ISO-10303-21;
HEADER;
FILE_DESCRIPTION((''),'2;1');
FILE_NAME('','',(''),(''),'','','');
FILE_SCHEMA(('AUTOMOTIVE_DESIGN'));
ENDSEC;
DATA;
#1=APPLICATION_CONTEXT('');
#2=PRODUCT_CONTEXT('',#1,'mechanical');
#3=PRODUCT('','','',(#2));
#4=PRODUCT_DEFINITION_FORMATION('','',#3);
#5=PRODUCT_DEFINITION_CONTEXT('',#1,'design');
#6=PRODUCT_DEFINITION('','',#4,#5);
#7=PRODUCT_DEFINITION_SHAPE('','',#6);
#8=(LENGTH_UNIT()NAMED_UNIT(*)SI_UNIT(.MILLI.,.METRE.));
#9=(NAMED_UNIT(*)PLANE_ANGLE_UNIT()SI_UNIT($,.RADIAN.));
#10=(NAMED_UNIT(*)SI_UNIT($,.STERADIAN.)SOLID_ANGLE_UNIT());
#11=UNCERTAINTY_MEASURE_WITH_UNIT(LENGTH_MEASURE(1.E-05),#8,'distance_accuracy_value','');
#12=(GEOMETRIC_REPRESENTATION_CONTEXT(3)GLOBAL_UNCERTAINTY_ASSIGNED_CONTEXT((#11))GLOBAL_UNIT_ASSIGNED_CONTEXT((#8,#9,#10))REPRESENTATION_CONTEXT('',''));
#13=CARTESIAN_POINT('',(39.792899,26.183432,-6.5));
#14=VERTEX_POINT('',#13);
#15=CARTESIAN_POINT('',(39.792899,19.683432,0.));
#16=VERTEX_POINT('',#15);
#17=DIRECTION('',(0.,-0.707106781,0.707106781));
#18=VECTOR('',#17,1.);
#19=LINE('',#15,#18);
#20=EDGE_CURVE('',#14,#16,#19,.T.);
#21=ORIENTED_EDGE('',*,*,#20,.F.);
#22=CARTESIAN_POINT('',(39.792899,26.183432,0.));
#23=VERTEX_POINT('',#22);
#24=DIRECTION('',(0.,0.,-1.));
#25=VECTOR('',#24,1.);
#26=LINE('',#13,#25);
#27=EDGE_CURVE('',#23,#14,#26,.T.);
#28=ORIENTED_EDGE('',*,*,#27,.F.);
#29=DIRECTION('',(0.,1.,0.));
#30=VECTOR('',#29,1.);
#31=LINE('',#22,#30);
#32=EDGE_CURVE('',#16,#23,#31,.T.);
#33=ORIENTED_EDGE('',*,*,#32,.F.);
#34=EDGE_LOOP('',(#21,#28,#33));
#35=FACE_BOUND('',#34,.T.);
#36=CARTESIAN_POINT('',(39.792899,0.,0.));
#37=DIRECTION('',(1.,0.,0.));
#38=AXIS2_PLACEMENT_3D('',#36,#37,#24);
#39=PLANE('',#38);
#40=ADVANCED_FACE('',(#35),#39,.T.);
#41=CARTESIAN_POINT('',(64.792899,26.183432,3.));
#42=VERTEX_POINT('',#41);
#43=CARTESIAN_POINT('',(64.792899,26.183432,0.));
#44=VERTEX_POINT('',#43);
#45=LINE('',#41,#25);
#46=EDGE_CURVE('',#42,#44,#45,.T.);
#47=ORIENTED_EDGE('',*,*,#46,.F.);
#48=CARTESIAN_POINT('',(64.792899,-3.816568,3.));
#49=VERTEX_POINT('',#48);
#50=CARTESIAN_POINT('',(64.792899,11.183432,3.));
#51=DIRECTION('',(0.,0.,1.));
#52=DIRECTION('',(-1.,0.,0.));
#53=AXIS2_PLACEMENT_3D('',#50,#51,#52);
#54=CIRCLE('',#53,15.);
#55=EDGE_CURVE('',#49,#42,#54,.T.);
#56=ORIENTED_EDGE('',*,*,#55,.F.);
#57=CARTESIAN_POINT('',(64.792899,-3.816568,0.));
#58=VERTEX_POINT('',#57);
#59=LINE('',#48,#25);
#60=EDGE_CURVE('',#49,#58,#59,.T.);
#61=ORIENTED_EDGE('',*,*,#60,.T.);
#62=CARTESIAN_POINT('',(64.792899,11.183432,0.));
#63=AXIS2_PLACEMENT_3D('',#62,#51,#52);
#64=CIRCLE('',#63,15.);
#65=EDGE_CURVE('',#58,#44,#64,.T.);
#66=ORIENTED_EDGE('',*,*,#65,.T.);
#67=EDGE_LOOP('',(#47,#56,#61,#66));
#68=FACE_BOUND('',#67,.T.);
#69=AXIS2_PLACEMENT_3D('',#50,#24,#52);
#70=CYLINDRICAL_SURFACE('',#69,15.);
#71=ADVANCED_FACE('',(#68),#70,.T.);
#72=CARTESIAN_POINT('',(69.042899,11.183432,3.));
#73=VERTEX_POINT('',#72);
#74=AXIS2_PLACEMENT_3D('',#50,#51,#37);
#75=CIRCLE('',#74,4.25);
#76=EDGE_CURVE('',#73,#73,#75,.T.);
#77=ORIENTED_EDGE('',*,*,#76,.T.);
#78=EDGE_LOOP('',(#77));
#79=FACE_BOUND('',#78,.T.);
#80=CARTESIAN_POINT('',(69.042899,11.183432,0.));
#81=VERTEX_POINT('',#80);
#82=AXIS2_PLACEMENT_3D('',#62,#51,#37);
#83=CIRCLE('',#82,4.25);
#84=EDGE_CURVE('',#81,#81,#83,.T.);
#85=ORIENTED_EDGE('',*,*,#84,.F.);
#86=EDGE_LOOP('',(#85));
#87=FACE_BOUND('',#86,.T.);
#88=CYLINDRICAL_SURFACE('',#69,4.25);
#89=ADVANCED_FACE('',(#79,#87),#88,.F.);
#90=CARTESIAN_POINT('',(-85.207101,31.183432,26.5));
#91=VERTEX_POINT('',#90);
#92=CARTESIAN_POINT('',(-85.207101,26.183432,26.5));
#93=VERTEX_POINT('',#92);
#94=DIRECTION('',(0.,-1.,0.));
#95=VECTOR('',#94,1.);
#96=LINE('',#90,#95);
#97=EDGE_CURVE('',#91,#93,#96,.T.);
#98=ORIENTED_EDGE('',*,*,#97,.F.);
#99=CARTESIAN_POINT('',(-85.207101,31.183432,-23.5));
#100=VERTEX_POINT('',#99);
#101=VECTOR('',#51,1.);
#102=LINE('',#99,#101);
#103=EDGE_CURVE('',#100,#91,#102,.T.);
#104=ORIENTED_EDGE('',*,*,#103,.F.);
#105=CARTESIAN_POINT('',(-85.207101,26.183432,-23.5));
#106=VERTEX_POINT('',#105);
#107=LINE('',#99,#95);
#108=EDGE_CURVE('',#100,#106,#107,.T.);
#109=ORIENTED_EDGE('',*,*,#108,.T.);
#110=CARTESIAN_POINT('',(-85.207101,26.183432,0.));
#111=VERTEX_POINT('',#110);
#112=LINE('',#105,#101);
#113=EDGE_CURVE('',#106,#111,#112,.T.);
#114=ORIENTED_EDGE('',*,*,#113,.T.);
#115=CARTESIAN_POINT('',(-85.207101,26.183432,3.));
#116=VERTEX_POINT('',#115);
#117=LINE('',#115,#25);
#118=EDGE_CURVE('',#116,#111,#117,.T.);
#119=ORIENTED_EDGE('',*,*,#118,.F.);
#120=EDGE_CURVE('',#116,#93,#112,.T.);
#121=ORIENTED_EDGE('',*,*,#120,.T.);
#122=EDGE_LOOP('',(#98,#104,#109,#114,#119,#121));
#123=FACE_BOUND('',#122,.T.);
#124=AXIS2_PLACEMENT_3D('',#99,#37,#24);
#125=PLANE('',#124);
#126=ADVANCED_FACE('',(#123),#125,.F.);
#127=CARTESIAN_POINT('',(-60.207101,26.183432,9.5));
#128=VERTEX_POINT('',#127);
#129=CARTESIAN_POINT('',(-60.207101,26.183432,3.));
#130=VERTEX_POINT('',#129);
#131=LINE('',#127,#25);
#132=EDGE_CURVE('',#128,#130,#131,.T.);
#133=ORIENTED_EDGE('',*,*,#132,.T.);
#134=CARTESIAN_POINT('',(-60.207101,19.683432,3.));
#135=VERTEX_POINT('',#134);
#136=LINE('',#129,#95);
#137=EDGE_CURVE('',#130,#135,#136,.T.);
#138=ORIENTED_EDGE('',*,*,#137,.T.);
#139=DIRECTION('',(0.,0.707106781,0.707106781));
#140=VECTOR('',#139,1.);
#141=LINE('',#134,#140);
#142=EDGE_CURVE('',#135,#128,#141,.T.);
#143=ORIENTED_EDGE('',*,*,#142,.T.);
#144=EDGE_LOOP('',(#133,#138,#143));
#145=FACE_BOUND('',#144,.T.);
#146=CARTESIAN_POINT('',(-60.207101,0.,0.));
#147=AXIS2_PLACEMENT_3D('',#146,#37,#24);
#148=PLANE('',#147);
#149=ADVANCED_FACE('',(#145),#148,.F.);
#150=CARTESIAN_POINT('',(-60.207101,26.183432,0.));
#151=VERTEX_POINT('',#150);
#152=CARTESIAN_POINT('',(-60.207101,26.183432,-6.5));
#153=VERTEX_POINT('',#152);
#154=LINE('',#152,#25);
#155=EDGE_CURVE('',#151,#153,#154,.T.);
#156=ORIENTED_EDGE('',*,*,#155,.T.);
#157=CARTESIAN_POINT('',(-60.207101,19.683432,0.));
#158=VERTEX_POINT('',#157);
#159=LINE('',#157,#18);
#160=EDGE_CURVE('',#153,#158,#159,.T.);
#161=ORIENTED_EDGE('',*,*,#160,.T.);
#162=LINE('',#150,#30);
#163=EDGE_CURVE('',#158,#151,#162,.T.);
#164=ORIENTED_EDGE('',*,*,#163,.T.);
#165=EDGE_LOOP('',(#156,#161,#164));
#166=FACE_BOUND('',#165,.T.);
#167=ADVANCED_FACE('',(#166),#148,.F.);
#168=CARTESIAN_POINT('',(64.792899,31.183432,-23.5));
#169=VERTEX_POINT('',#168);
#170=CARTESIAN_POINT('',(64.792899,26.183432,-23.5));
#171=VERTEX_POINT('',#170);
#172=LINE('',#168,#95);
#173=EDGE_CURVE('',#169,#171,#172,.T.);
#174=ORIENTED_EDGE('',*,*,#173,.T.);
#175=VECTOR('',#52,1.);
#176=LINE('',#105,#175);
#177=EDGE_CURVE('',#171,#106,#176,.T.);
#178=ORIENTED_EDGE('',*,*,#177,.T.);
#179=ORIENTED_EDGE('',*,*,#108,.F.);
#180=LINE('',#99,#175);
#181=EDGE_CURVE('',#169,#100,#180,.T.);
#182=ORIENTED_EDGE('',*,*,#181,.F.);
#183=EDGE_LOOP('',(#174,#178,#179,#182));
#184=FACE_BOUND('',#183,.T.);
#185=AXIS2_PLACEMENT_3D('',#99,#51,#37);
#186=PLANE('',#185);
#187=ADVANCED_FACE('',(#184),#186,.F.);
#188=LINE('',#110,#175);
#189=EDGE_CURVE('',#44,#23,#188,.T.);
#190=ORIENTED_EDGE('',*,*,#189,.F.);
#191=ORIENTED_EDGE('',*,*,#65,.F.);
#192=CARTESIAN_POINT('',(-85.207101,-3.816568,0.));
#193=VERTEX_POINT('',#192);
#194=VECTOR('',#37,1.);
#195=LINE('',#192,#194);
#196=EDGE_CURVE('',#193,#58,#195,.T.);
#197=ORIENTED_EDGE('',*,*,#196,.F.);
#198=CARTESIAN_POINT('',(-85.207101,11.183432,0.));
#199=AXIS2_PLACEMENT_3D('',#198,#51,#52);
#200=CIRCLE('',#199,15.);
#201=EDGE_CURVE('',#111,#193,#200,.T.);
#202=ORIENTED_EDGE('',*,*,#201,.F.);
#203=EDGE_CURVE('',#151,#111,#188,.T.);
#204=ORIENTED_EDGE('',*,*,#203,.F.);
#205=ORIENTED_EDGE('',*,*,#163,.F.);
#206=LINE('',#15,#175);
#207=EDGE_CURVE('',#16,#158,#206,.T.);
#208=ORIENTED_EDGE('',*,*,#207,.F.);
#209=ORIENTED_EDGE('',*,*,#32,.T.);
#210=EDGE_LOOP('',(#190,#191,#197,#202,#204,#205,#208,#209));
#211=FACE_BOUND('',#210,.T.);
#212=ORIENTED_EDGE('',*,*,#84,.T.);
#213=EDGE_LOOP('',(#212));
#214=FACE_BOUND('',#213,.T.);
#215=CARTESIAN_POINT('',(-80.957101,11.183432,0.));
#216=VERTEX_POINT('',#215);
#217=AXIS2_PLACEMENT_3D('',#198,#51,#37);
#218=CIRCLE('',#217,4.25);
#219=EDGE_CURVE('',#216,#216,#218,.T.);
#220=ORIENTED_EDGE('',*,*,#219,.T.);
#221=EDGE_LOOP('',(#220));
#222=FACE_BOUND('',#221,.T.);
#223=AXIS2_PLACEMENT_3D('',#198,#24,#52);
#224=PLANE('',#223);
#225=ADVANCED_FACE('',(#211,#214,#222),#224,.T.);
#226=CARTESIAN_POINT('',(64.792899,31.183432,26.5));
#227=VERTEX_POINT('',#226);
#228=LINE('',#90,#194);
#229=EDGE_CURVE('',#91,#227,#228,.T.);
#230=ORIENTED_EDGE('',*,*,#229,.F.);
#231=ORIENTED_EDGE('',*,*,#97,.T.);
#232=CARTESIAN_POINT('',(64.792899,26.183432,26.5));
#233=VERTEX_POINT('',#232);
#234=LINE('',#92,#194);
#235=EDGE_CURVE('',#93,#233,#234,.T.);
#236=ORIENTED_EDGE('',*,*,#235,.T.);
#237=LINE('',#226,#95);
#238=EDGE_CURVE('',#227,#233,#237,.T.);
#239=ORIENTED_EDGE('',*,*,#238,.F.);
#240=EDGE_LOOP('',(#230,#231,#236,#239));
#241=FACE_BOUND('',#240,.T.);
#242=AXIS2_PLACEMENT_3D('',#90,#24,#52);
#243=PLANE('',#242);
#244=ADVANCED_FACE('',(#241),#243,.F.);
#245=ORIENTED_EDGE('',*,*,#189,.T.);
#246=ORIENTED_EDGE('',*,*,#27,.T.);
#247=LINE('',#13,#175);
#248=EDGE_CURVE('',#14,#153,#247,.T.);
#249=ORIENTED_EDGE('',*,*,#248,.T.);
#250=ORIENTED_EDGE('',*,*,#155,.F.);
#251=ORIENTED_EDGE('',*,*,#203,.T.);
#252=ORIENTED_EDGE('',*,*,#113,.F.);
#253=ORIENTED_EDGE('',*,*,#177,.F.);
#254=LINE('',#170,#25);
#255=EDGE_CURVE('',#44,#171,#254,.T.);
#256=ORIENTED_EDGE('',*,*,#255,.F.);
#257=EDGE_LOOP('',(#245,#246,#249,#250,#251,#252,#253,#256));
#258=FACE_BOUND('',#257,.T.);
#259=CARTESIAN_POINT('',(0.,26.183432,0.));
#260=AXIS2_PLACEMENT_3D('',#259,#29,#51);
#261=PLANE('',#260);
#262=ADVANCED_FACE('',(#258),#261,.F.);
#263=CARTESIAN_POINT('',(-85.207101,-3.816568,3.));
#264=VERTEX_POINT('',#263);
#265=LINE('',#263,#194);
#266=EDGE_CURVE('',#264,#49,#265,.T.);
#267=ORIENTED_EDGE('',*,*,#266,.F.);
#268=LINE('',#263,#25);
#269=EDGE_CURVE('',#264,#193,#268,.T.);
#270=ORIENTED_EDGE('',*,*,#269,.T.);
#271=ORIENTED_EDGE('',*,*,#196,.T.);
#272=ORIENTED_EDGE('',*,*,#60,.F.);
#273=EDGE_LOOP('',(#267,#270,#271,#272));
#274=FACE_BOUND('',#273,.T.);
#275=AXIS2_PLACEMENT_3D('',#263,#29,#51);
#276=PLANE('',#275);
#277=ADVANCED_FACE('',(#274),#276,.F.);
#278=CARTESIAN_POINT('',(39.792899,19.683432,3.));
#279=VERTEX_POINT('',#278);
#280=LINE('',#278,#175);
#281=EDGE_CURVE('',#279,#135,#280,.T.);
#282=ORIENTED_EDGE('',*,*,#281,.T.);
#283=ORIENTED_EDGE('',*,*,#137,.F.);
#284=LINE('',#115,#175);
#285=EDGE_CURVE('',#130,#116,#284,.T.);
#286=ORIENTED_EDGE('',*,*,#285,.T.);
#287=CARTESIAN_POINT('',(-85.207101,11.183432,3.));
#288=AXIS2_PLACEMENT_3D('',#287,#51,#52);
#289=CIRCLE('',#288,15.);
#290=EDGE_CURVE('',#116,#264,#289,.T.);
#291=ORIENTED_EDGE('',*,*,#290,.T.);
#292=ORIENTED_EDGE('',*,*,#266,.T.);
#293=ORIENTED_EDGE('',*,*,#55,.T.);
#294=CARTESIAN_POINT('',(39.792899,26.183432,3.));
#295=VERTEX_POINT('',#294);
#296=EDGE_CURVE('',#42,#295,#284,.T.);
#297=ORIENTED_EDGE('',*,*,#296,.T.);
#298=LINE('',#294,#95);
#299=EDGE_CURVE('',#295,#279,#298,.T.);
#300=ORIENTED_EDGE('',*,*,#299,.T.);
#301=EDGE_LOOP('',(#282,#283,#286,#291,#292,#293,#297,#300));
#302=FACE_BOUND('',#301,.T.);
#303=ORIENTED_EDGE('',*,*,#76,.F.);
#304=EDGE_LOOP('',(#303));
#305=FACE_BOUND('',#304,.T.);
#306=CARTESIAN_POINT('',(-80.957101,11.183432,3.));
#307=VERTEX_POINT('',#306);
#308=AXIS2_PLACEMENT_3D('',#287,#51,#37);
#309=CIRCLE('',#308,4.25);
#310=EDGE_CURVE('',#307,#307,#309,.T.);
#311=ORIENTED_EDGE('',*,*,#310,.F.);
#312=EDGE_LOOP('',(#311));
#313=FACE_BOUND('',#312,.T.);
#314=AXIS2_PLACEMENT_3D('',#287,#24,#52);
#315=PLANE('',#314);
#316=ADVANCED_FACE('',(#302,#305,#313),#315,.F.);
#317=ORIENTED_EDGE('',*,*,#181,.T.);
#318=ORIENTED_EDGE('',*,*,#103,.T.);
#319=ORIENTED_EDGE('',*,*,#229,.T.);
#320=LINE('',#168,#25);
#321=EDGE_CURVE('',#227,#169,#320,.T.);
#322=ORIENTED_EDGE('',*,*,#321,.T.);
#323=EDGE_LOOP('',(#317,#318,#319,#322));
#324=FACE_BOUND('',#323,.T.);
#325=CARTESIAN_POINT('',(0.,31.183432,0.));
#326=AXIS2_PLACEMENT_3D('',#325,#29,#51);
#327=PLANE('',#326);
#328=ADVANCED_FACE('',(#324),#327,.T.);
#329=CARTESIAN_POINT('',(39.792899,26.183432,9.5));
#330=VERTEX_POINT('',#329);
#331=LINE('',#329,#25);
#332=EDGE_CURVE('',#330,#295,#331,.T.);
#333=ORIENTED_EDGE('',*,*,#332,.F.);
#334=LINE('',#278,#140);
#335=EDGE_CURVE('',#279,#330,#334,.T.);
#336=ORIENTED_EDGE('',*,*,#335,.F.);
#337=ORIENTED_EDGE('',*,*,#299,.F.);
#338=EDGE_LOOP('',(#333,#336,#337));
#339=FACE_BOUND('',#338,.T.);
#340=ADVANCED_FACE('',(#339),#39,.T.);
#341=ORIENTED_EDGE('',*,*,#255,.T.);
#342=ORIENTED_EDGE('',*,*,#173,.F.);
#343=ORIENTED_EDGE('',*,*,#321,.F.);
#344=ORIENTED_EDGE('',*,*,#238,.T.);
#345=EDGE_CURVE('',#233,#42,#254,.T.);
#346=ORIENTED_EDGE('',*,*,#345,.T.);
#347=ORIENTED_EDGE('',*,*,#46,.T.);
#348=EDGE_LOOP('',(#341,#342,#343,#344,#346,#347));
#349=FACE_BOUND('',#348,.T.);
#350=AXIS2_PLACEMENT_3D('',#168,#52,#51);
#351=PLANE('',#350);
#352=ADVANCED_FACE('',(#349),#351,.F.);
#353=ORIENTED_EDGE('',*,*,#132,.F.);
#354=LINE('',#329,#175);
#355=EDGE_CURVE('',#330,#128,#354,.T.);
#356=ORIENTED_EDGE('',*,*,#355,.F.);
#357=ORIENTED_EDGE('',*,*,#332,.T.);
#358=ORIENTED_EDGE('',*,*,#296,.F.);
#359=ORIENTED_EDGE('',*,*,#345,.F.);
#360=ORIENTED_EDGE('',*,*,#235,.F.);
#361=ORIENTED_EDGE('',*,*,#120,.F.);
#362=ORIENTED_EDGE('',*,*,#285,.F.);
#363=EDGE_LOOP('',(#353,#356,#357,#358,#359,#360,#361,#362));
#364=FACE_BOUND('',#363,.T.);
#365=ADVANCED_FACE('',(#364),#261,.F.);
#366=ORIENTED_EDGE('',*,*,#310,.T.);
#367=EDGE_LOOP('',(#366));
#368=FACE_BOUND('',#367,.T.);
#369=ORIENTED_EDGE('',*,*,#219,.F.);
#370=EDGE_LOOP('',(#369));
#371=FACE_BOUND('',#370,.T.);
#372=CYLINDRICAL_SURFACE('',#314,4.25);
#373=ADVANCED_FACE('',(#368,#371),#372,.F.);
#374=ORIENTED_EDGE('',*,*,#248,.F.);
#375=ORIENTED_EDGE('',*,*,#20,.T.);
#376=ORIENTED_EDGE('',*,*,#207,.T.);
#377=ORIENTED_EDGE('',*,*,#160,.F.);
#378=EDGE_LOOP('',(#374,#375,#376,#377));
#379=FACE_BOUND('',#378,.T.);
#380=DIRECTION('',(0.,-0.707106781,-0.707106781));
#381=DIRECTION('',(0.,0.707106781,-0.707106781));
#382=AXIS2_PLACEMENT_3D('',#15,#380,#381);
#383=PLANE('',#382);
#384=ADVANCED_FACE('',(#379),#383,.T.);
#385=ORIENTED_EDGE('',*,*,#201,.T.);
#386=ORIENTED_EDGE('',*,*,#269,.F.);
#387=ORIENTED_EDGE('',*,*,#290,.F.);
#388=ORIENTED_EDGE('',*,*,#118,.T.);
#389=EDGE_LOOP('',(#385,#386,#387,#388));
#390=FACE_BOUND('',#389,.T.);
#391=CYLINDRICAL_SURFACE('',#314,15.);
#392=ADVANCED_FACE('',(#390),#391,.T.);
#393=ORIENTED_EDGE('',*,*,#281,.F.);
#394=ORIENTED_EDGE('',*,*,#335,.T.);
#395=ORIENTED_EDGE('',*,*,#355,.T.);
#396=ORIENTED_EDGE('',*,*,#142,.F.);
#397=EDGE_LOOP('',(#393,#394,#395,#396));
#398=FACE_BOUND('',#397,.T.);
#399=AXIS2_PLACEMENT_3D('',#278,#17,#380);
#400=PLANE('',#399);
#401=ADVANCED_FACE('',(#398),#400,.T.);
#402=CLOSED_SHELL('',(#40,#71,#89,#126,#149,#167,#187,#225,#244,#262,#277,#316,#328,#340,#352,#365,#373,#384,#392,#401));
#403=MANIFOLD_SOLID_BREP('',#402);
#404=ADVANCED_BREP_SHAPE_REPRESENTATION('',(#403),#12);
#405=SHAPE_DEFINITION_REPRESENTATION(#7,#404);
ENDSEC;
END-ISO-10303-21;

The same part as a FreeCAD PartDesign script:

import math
import FreeCAD as App
import Part
import Sketcher

V = App.Vector


def add_polygon(sketch, points):
    """Adds a closed chain of lines whose ends are joined by coincident constraints."""
    first, n = sketch.GeometryCount, len(points)
    for a, b in zip(points, points[1:] + points[:1]):
        sketch.addGeometry(Part.LineSegment(App.Vector(*a, 0), App.Vector(*b, 0)), False)
    for i in range(n):
        sketch.addConstraint(Sketcher.Constraint("Coincident", first + i, 2, first + (i + 1) % n, 1))

doc = App.newDocument("Part")
body = doc.addObject("PartDesign::Body", "Body")

sketch1 = body.newObject("Sketcher::SketchObject", "Sketch")
sketch1.AttachmentSupport = (doc.getObject("XY_Plane"), [""])
sketch1.MapMode = "FlatFace"
sketch1.addGeometry([
    Part.LineSegment(V(64.8, 26.2, 0), V(-85.2, 26.2, 0)),
    Part.ArcOfCircle(Part.Circle(V(-85.2, 11.2, 0), V(0, 0, 1), 15), math.radians(90), math.radians(270)),
    Part.LineSegment(V(-85.2, -3.8, 0), V(64.8, -3.8, 0)),
    Part.ArcOfCircle(Part.Circle(V(64.8, 11.2, 0), V(0, 0, 1), 15), math.radians(-90), math.radians(90)),
    Part.Circle(V(64.8, 11.2, 0), V(0, 0, 1), 4.2),
    Part.Circle(V(-85.2, 11.2, 0), V(0, 0, 1), 4.2),
], False)
sketch1.addConstraint([
    Sketcher.Constraint("Tangent", 0, 2, 1, 1),
    Sketcher.Constraint("Tangent", 1, 2, 2, 1),
    Sketcher.Constraint("Tangent", 2, 2, 3, 1),
    Sketcher.Constraint("Tangent", 3, 2, 0, 1),
    Sketcher.Constraint("Horizontal", 0),
    Sketcher.Constraint("Horizontal", 2),
    Sketcher.Constraint("Coincident", 4, 3, 3, 3),
    Sketcher.Constraint("Coincident", 5, 3, 1, 3),
    Sketcher.Constraint("Equal", 4, 5),
    Sketcher.Constraint("Radius", 1, 15.0),
    Sketcher.Constraint("Diameter", 4, 8.5),
    Sketcher.Constraint("DistanceX", 0, 2, 0, 1, 150.0),
    Sketcher.Constraint("DistanceX", 1, 3, -1, 1, 85.207101),
    Sketcher.Constraint("DistanceY", -1, 1, 1, 3, 11.183432),
])
pad1 = body.newObject("PartDesign::Pad", "Pad")
pad1.Profile = sketch1
pad1.Length = 3

sketch2 = body.newObject("Sketcher::SketchObject", "Sketch001")
sketch2.AttachmentSupport = (doc.getObject("XZ_Plane"), [""])
sketch2.MapMode = "FlatFace"
sketch2.AttachmentOffset = App.Placement(V(0, 0, -26.183432), App.Rotation())
add_polygon(sketch2, [(-85, -24), (-85, 26), (65, 26), (65, -24)])
sketch2.addConstraint([
    Sketcher.Constraint("Vertical", 0),
    Sketcher.Constraint("Horizontal", 1),
    Sketcher.Constraint("Vertical", 2),
    Sketcher.Constraint("Horizontal", 3),
    Sketcher.Constraint("DistanceX", 1, 1, 1, 2, 150.0),
    Sketcher.Constraint("DistanceY", 0, 1, 0, 2, 50.0),
    Sketcher.Constraint("DistanceY", -1, 1, 0, 2, 26.5),
    Sketcher.Constraint("DistanceX", 0, 2, -1, 1, 85.207101),
])
pad2 = body.newObject("PartDesign::Pad", "Pad001")
pad2.Profile = sketch2
pad2.Length = 5
pad2.Reversed = True

sketch3 = body.newObject("Sketcher::SketchObject", "Sketch002")
sketch3.AttachmentSupport = (doc.getObject("YZ_Plane"), [""])
sketch3.MapMode = "FlatFace"
sketch3.AttachmentOffset = App.Placement(V(0, 0, -60.207101), App.Rotation())
add_polygon(sketch3, [(20, 3), (26, 10), (26, 3)])
add_polygon(sketch3, [(20, 0), (26, 0), (26, -6)])
sketch3.addConstraint([
    Sketcher.Constraint("Vertical", 1),
    Sketcher.Constraint("Horizontal", 2),
    Sketcher.Constraint("Horizontal", 3),
    Sketcher.Constraint("Vertical", 4),
    Sketcher.Constraint("PointOnObject", 3, 2, -1),
    Sketcher.Constraint("Perpendicular", 0, 5),
    Sketcher.Constraint("Vertical", 1, 2, 3, 2),
    Sketcher.Constraint("Vertical", 2, 2, 5, 2),
    Sketcher.Constraint("Equal", 3, 1),
    Sketcher.Constraint("DistanceX", 2, 2, 2, 1, 6.5),
    Sketcher.Constraint("DistanceY", -1, 1, 1, 2, 3.0),
    Sketcher.Constraint("DistanceX", -1, 1, 0, 2, 26.183432),
])
pad3 = body.newObject("PartDesign::Pad", "Pad002")
pad3.Profile = sketch3
pad3.Length = 100

doc.recompute()
